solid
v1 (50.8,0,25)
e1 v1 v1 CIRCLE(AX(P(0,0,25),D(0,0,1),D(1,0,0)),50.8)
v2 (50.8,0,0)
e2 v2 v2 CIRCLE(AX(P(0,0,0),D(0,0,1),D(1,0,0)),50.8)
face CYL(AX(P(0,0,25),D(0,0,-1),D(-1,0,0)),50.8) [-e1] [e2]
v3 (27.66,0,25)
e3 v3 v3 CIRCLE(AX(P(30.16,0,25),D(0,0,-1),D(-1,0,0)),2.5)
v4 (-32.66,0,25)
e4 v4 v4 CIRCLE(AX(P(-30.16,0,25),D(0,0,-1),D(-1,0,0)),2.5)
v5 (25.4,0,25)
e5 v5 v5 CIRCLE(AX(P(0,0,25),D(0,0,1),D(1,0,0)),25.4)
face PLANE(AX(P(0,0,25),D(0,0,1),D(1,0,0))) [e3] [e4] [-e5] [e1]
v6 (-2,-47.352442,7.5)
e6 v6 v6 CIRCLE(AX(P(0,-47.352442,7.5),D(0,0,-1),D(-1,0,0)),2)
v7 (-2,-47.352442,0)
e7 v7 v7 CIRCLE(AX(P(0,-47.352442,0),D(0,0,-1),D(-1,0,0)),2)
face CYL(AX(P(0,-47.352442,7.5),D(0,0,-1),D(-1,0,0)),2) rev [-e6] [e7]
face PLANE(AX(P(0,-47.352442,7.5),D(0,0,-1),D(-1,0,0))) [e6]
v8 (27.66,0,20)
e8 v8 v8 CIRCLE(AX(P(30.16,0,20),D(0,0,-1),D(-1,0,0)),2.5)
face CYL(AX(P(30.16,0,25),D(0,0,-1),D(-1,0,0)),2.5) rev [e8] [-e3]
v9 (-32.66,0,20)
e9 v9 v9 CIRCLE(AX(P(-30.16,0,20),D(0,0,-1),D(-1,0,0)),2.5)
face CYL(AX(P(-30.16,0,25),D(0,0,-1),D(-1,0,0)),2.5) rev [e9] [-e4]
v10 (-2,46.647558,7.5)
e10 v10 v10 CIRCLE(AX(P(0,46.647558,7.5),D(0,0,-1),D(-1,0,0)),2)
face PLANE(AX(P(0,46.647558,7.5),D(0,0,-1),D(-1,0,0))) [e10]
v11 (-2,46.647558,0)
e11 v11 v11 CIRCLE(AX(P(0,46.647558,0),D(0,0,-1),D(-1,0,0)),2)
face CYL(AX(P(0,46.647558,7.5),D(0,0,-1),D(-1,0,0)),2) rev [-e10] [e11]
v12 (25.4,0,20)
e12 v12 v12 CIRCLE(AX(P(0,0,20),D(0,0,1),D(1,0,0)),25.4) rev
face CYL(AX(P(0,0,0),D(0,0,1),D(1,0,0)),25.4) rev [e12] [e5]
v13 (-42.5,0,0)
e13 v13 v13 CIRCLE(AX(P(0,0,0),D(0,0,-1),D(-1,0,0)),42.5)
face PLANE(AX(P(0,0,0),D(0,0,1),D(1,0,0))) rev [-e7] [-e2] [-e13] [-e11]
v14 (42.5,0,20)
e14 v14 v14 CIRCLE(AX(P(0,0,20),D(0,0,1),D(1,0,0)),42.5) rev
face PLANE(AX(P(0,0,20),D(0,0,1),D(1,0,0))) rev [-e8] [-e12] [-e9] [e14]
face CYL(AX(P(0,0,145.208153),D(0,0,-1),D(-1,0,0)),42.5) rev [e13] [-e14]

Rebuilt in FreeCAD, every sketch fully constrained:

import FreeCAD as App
import Part
import Sketcher

V = App.Vector
Q = App.Units.Quantity

doc = App.newDocument("Part")
body = doc.addObject("PartDesign::Body", "Body")

# Sketch on XY plane
sketch1 = body.newObject("Sketcher::SketchObject", "Sketch")
sketch1.AttachmentSupport = (doc.getObject("XY_Plane"), [""])
sketch1.MapMode = "FlatFace"
sketch1.addGeometry(Part.Circle(V(0, 0, 0), V(0, 0, 1), 51), False)
sketch1.addConstraint([
    Sketcher.Constraint("Coincident", 0, 3, -1, 1),
    Sketcher.Constraint("Diameter", 0, Q("101.6 mm")),
])
pad1 = body.newObject("PartDesign::Pad", "Pad")
pad1.Profile = sketch1
pad1.Length = 25

# Sketch on XY plane
sketch2 = body.newObject("Sketcher::SketchObject", "Sketch001")
sketch2.AttachmentSupport = (doc.getObject("XY_Plane"), [""])
sketch2.MapMode = "FlatFace"
sketch2.AttachmentOffset = App.Placement(V(0, 0, 25), App.Rotation())
sketch2.addGeometry(Part.Circle(V(0, 0, 0), V(0, 0, 1), 25), False)
sketch2.addConstraint([
    Sketcher.Constraint("Coincident", 0, 3, -1, 1),
    Sketcher.Constraint("Diameter", 0, Q("50.8 mm")),
])
pocket1 = body.newObject("PartDesign::Pocket", "Pocket")
pocket1.Profile = sketch2
pocket1.Type = "ThroughAll"

# Sketch on XY plane
sketch3 = body.newObject("Sketcher::SketchObject", "Sketch002")
sketch3.AttachmentSupport = (doc.getObject("XY_Plane"), [""])
sketch3.MapMode = "FlatFace"
sketch3.addGeometry(Part.Circle(V(0, 0, 0), V(0, 0, 1), 42), False)
sketch3.addConstraint([
    Sketcher.Constraint("Coincident", 0, 3, -1, 1),
    Sketcher.Constraint("Diameter", 0, Q("85 mm")),
])
pocket2 = body.newObject("PartDesign::Pocket", "Pocket001")
pocket2.Profile = sketch3
pocket2.Length = 20
pocket2.Reversed = True

# Sketch on XY plane
sketch4 = body.newObject("Sketcher::SketchObject", "Sketch003")
sketch4.AttachmentSupport = (doc.getObject("XY_Plane"), [""])
sketch4.MapMode = "FlatFace"
sketch4.AttachmentOffset = App.Placement(V(0, 0, 20), App.Rotation())
sketch4.addGeometry([
    Part.Circle(V(30.2, 0, 0), V(0, 0, 1), 2.5),
    Part.Circle(V(-30.2, 0, 0), V(0, 0, 1), 2.5),
], False)
sketch4.addConstraint([
    Sketcher.Constraint("Equal", 0, 1),
    Sketcher.Constraint("Symmetric", 0, 3, 1, 3, -1, 1),
    Sketcher.Constraint("PointOnObject", 0, 3, -1),
    Sketcher.Constraint("Diameter", 0, Q("5 mm")),
    Sketcher.Constraint("DistanceX", -1, 1, 0, 3, Q("30.16 mm")),
])
pocket3 = body.newObject("PartDesign::Pocket", "Pocket002")
pocket3.Profile = sketch4
pocket3.Type = "ThroughAll"
pocket3.Reversed = True

# Sketch on XY plane
sketch5 = body.newObject("Sketcher::SketchObject", "Sketch004")
sketch5.AttachmentSupport = (doc.getObject("XY_Plane"), [""])
sketch5.MapMode = "FlatFace"
sketch5.addGeometry([
    Part.Circle(V(0, 46.6, 0), V(0, 0, 1), 2),
    Part.Circle(V(0, -47.4, 0), V(0, 0, 1), 2),
], False)
sketch5.addConstraint([
    Sketcher.Constraint("Equal", 0, 1),
    Sketcher.Constraint("PointOnObject", 0, 3, -2),
    Sketcher.Constraint("PointOnObject", 1, 3, -2),
    Sketcher.Constraint("Diameter", 0, Q("4 mm")),
    Sketcher.Constraint("DistanceY", 1, 3, 0, 3, Q("94 mm")),
    Sketcher.Constraint("DistanceY", -1, 1, 0, 3, Q("46.647558 mm")),
])
pocket4 = body.newObject("PartDesign::Pocket", "Pocket003")
pocket4.Profile = sketch5
pocket4.Length = 7.5
pocket4.Reversed = True

doc.recompute()
